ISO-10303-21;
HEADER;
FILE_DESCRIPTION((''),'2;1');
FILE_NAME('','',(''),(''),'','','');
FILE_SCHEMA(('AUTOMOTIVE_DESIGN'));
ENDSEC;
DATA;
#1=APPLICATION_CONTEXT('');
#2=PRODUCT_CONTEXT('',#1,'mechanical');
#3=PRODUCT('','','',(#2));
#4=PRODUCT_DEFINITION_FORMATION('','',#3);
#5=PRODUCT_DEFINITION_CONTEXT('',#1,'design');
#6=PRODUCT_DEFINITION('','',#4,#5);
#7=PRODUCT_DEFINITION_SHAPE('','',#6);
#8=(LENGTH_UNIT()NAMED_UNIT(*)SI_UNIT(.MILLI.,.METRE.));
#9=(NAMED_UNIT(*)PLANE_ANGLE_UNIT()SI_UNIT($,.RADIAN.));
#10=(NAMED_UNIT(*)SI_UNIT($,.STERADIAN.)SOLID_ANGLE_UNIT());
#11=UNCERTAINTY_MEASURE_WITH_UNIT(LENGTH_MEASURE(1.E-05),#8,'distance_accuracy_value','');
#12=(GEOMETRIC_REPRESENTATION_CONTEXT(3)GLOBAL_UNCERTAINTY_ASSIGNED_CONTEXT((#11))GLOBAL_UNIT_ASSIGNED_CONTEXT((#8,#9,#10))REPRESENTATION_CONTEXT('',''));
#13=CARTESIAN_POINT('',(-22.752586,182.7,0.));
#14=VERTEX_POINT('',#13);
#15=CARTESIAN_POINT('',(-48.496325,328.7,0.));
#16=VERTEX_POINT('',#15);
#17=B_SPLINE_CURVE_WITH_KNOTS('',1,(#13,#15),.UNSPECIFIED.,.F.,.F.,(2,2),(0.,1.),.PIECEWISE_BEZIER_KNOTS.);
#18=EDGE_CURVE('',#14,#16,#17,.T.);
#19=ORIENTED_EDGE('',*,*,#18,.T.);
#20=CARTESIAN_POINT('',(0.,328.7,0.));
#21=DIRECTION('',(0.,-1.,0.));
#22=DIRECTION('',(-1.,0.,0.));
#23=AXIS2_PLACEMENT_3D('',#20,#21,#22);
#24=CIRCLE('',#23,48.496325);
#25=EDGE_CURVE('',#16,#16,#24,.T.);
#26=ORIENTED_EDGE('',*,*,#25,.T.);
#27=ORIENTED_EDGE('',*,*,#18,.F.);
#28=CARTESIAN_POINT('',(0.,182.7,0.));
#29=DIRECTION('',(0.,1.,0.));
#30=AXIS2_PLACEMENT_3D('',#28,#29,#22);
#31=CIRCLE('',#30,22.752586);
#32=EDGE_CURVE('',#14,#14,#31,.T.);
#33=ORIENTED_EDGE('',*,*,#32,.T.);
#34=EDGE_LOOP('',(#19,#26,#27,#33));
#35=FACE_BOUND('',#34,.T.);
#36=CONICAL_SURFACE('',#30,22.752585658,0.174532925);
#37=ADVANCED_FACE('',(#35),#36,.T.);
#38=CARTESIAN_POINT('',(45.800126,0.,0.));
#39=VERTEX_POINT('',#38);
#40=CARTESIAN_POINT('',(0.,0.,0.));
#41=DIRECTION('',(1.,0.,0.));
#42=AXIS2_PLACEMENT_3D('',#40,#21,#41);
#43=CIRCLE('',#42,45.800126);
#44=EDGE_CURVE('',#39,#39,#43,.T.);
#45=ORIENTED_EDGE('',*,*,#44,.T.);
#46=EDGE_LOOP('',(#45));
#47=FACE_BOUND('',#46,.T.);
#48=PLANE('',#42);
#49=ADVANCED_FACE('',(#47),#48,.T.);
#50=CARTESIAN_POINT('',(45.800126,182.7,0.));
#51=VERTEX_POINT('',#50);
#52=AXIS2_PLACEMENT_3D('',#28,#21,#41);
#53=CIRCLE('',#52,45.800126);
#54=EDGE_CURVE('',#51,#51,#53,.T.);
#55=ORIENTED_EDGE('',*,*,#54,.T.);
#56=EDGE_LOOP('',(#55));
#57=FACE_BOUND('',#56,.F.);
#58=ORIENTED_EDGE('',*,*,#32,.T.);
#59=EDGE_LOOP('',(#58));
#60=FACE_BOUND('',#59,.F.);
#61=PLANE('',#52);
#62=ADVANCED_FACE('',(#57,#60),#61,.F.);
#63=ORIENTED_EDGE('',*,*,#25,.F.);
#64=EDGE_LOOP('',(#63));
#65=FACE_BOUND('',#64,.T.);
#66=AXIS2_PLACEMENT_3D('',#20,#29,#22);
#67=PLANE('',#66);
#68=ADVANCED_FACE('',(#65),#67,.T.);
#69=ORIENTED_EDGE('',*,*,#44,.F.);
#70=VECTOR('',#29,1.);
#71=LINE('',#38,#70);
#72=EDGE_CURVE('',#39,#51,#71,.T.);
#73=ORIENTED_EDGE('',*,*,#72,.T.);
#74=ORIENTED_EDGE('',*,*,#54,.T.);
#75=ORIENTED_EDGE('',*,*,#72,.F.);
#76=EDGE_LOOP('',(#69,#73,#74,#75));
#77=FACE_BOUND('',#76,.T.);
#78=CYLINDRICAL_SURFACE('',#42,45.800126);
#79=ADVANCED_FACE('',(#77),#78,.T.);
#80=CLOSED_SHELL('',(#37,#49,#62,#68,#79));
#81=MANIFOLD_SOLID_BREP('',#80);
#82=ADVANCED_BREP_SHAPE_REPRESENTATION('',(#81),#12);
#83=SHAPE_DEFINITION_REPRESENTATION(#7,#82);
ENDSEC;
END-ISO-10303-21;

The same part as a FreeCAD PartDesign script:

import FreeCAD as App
import Part
import Sketcher
from FreeCAD import Vector
Q = App.Units.Quantity

doc = App.newDocument("Part")
body = doc.addObject("PartDesign::Body", "Body")

sketch1 = body.newObject("Sketcher::SketchObject", "Sketch")
sketch1.AttachmentSupport = (doc.getObject("XZ_Plane"), [""])
sketch1.MapMode = "FlatFace"
sketch1.addGeometry(Part.Circle(Vector(0, 0, 0), Vector(0, 0, 1), 46), False)
sketch1.addConstraint([
    Sketcher.Constraint("Coincident", 0, 3, -1, 1),
    Sketcher.Constraint("Diameter", 0, Q("91.600253 mm")),
])
pad1 = body.newObject("PartDesign::Pad", "Pad")
pad1.Profile = sketch1
pad1.Length = 182.7
pad1.Reversed = True

sketch2 = body.newObject("Sketcher::SketchObject", "Sketch001")
sketch2.AttachmentSupport = (doc.getObject("XZ_Plane"), [""])
sketch2.MapMode = "FlatFace"
sketch2.AttachmentOffset = App.Placement(Vector(0, 0, -182.7), App.Rotation())
sketch2.addGeometry(Part.Circle(Vector(0, 0, 0), Vector(0, 0, 1), 23), False)
sketch2.addConstraint([
    Sketcher.Constraint("Coincident", 0, 3, -1, 1),
    Sketcher.Constraint("Diameter", 0, Q("45.505171 mm")),
])
pad2 = body.newObject("PartDesign::Pad", "Pad001")
pad2.Profile = sketch2
pad2.Length = 146
pad2.Reversed = True
pad2.TaperAngle = 10

doc.recompute()
